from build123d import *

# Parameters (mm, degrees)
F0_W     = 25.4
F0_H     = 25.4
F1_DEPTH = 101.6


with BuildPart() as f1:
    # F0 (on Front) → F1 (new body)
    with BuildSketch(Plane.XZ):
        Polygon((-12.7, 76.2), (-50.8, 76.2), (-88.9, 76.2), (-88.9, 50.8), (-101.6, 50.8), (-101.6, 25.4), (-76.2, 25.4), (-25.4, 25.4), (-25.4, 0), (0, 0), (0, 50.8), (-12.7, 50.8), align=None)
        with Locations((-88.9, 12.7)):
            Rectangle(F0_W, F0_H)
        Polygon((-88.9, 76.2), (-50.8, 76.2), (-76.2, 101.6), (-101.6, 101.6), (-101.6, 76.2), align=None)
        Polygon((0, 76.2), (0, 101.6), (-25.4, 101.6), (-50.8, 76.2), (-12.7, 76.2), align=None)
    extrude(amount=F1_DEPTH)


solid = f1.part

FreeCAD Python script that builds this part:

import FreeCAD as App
import Part
import Sketcher
from FreeCAD import Vector
Q = App.Units.Quantity

doc = App.newDocument("Part")
params = doc.addObject("Spreadsheet::Sheet", "Params")
for row, (alias, value) in enumerate([
    ("sketch1_width", "1 in"),
    ("sketch1_width2", "0.5 in"),
    ("pad1_length", "4 in"),
], start=1):
    params.set(f"A{row}", alias)
    params.set(f"B{row}", "=" + value)
    params.setAlias(f"B{row}", alias)

body = doc.addObject("PartDesign::Body", "Body")

sketch1 = body.newObject("Sketcher::SketchObject", "Sketch")
sketch1.AttachmentSupport = (doc.getObject("XZ_Plane"), [""])
sketch1.MapMode = "FlatFace"
sketch1.addGeometry([
    Part.LineSegment(Vector(-51, 76, 0), Vector(-76, 102, 0)),
    Part.LineSegment(Vector(-76, 102, 0), Vector(-102, 102, 0)),
    Part.LineSegment(Vector(-102, 102, 0), Vector(-102, 76, 0)),
    Part.LineSegment(Vector(-102, 76, 0), Vector(-89, 76, 0)),
    Part.LineSegment(Vector(-89, 76, 0), Vector(-89, 51, 0)),
    Part.LineSegment(Vector(-89, 51, 0), Vector(-102, 51, 0)),
    Part.LineSegment(Vector(-102, 51, 0), Vector(-102, 0, 0)),
    Part.LineSegment(Vector(-102, 0, 0), Vector(-76, 0, 0)),
    Part.LineSegment(Vector(-76, 0, 0), Vector(-76, 25, 0)),
    Part.LineSegment(Vector(-76, 25, 0), Vector(-25, 25, 0)),
    Part.LineSegment(Vector(-25, 25, 0), Vector(-25, 0, 0)),
    Part.LineSegment(Vector(-25, 0, 0), Vector(0, 0, 0)),
    Part.LineSegment(Vector(0, 0, 0), Vector(0, 51, 0)),
    Part.LineSegment(Vector(0, 51, 0), Vector(-13, 51, 0)),
    Part.LineSegment(Vector(-13, 51, 0), Vector(-13, 76, 0)),
    Part.LineSegment(Vector(-13, 76, 0), Vector(0, 76, 0)),
    Part.LineSegment(Vector(0, 76, 0), Vector(0, 102, 0)),
    Part.LineSegment(Vector(0, 102, 0), Vector(-25, 102, 0)),
    Part.LineSegment(Vector(-25, 102, 0), Vector(-51, 76, 0)),
], False)
sketch1.addConstraint([
    Sketcher.Constraint("Coincident", 0, 2, 1, 1),
    Sketcher.Constraint("Coincident", 1, 2, 2, 1),
    Sketcher.Constraint("Coincident", 2, 2, 3, 1),
    Sketcher.Constraint("Coincident", 3, 2, 4, 1),
    Sketcher.Constraint("Coincident", 4, 2, 5, 1),
    Sketcher.Constraint("Coincident", 5, 2, 6, 1),
    Sketcher.Constraint("Coincident", 6, 2, 7, 1),
    Sketcher.Constraint("Coincident", 7, 2, 8, 1),
    Sketcher.Constraint("Coincident", 8, 2, 9, 1),
    Sketcher.Constraint("Coincident", 9, 2, 10, 1),
    Sketcher.Constraint("Coincident", 10, 2, 11, 1),
    Sketcher.Constraint("Coincident", 11, 2, 12, 1),
    Sketcher.Constraint("Coincident", 12, 2, 13, 1),
    Sketcher.Constraint("Coincident", 13, 2, 14, 1),
    Sketcher.Constraint("Coincident", 14, 2, 15, 1),
    Sketcher.Constraint("Coincident", 15, 2, 16, 1),
    Sketcher.Constraint("Coincident", 16, 2, 17, 1),
    Sketcher.Constraint("Coincident", 17, 2, 18, 1),
    Sketcher.Constraint("Coincident", 18, 2, 0, 1),
    Sketcher.Constraint("Horizontal", 1),
    Sketcher.Constraint("Vertical", 2),
    Sketcher.Constraint("Horizontal", 3),
    Sketcher.Constraint("Vertical", 4),
    Sketcher.Constraint("Horizontal", 5),
    Sketcher.Constraint("Vertical", 6),
    Sketcher.Constraint("Horizontal", 7),
    Sketcher.Constraint("Vertical", 8),
    Sketcher.Constraint("Horizontal", 9),
    Sketcher.Constraint("Vertical", 10),
    Sketcher.Constraint("Horizontal", 11),
    Sketcher.Constraint("Vertical", 12),
    Sketcher.Constraint("Horizontal", 13),
    Sketcher.Constraint("Vertical", 14),
    Sketcher.Constraint("Horizontal", 15),
    Sketcher.Constraint("Vertical", 16),
    Sketcher.Constraint("Horizontal", 17),
    Sketcher.Constraint("Coincident", 11, 2, -1, 1),
    Sketcher.Constraint("PointOnObject", 6, 2, -1),
    Sketcher.Constraint("PointOnObject", 15, 2, -2),
    Sketcher.Constraint("Perpendicular", 0, 18),
    Sketcher.Constraint("Horizontal", 5, 2, 12, 2),
    Sketcher.Constraint("Horizontal", 3, 2, 14, 2),
    Sketcher.Constraint("Horizontal", 1, 2, 16, 2),
    Sketcher.Constraint("Horizontal", 15, 2, 18, 2),
    Sketcher.Constraint("Vertical", 2, 2, 5, 2),
    Sketcher.Constraint("Vertical", 0, 2, 7, 2),
    Sketcher.Constraint("Vertical", 10, 2, 17, 2),
    Sketcher.Constraint("Equal", 7, 11),
    Sketcher.Constraint("Equal", 5, 13),
    Sketcher.Constraint("Equal", 17, 2),
    Sketcher.Constraint("Equal", 2, 4),
    Sketcher.Constraint("Equal", 9, 6),
    Sketcher.Constraint("Equal", 4, 8),
    Sketcher.Constraint("Equal", 0, 18),
    Sketcher.Constraint("DistanceX", 1, 2, 1, 1, Q("1 in")),
    Sketcher.Constraint("DistanceX", 3, 1, 3, 2, Q("0.5 in")),
])
sketch1.setExpression("Constraints[54]", "Params.sketch1_width")
sketch1.setExpression("Constraints[55]", "Params.sketch1_width2")
pad1 = body.newObject("PartDesign::Pad", "Pad")
pad1.Profile = sketch1
pad1.setExpression("Length", "Params.pad1_length")

doc.recompute()
